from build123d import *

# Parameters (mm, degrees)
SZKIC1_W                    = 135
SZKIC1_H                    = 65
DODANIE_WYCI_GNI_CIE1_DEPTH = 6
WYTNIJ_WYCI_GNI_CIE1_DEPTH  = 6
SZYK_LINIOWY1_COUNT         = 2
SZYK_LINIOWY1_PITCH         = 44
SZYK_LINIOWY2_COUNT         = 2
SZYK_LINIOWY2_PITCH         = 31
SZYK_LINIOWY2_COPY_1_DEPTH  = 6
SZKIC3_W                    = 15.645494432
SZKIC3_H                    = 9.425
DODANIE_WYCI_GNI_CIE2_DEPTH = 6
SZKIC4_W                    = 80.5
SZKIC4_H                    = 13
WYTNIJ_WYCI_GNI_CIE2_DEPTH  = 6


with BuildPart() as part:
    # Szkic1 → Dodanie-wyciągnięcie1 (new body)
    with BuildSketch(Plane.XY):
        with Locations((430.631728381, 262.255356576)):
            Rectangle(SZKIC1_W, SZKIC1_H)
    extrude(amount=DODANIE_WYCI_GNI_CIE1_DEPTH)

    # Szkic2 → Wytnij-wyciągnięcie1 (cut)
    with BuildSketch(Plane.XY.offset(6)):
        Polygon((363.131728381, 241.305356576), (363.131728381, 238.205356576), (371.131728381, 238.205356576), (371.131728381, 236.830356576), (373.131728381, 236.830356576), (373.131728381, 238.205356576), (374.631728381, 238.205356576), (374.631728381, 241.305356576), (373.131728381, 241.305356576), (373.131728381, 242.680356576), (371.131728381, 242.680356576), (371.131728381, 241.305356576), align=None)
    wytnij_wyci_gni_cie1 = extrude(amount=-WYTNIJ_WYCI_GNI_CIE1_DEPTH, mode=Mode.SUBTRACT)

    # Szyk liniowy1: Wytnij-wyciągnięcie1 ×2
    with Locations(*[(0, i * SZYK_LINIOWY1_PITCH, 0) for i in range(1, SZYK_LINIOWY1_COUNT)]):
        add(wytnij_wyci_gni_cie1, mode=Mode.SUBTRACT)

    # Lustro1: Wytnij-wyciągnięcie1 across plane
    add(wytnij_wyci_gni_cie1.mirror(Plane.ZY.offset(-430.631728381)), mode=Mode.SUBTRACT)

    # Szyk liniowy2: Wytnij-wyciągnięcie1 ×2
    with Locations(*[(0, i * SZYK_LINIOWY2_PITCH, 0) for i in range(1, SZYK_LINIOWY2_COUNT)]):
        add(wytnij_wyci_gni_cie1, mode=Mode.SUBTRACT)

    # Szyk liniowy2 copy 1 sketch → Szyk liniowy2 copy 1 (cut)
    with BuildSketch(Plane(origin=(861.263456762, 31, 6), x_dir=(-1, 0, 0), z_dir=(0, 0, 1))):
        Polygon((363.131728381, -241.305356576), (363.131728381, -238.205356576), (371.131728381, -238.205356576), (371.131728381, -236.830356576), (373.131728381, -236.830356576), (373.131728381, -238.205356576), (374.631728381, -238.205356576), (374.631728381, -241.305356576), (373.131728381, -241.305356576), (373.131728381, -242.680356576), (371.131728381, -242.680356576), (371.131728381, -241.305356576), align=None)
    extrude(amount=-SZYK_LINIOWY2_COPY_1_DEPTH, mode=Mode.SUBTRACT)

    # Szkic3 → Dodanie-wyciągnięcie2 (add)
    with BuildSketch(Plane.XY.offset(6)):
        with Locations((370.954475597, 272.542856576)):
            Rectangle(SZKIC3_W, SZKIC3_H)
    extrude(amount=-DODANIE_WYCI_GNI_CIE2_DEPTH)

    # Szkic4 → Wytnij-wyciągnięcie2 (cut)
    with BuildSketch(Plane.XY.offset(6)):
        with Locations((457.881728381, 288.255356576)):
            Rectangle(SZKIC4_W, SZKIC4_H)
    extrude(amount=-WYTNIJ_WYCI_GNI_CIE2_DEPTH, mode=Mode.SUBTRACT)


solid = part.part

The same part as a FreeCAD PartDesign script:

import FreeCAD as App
import Part
import Sketcher

V = App.Vector


def add_polygon(sketch, points):
    """Adds a closed chain of lines whose ends are joined by coincident constraints."""
    first, n = sketch.GeometryCount, len(points)
    for a, b in zip(points, points[1:] + points[:1]):
        sketch.addGeometry(Part.LineSegment(App.Vector(*a, 0), App.Vector(*b, 0)), False)
    for i in range(n):
        sketch.addConstraint(Sketcher.Constraint("Coincident", first + i, 2, first + (i + 1) % n, 1))

doc = App.newDocument("Part")
body = doc.addObject("PartDesign::Body", "Body")

# Sketch on XY plane
sketch1 = doc.addObject("Sketcher::SketchObject", "Sketch")
body.addObject(sketch1)
sketch1.AttachmentSupport = (doc.XY_Plane, [""])
sketch1.MapMode = "FlatFace"
add_polygon(sketch1, [(363, 295), (363, 230), (498, 230), (498, 295)])  # lines 0-3
sketch1.addConstraint([
    Sketcher.Constraint("Vertical", 0),
    Sketcher.Constraint("Horizontal", 1),
    Sketcher.Constraint("Vertical", 2),
    Sketcher.Constraint("Horizontal", 3),
    Sketcher.Constraint("DistanceX", 1, 1, 1, 2, 135.0),
    Sketcher.Constraint("DistanceY", 0, 2, 0, 1, 65.0),
    Sketcher.Constraint("DistanceX", -1, 1, 0, 2, 363.131728),
    Sketcher.Constraint("DistanceY", -1, 1, 0, 2, 229.755357),
])
pad1 = doc.addObject("PartDesign::Pad", "Pad")
body.addObject(pad1)
pad1.Profile = sketch1
pad1.Length = 6

# Sketch on XY plane
sketch2 = doc.addObject("Sketcher::SketchObject", "Sketch001")
body.addObject(sketch2)
sketch2.AttachmentSupport = (doc.XY_Plane, [""])
sketch2.MapMode = "FlatFace"
sketch2.AttachmentOffset = App.Placement(V(0, 0, 6), App.Rotation())
add_polygon(sketch2, [(363.1, 241.3), (363.1, 238.2), (371.1, 238.2), (371.1, 236.8), (373.1, 236.8), (373.1, 238.2), (374.6, 238.2), (374.6, 241.3), (373.1, 241.3), (373.1, 242.7), (371.1, 242.7), (371.1, 241.3)])  # lines 0-11
sketch2.addConstraint([
    Sketcher.Constraint("Vertical", 0),
    Sketcher.Constraint("Horizontal", 1),
    Sketcher.Constraint("Vertical", 2),
    Sketcher.Constraint("Horizontal", 3),
    Sketcher.Constraint("Vertical", 4),
    Sketcher.Constraint("Horizontal", 5),
    Sketcher.Constraint("Vertical", 6),
    Sketcher.Constraint("Horizontal", 7),
    Sketcher.Constraint("Vertical", 8),
    Sketcher.Constraint("Horizontal", 9),
    Sketcher.Constraint("Vertical", 10),
    Sketcher.Constraint("Horizontal", 11),
    Sketcher.Constraint("Horizontal", 1, 2, 4, 2),
    Sketcher.Constraint("Horizontal", 7, 2, 10, 2),
    Sketcher.Constraint("Vertical", 4, 2, 7, 2),
    Sketcher.Constraint("Vertical", 2, 2, 9, 2),
    Sketcher.Constraint("Equal", 4, 8),
    Sketcher.Constraint("DistanceX", 1, 1, 1, 2, 8.0),
    Sketcher.Constraint("DistanceX", 3, 1, 3, 2, 2.0),
    Sketcher.Constraint("DistanceX", 5, 1, 5, 2, 1.5),
    Sketcher.Constraint("DistanceY", 0, 2, 0, 1, 3.1),
    Sketcher.Constraint("DistanceY", 2, 2, 2, 1, 1.375),
    Sketcher.Constraint("DistanceX", -1, 1, 0, 2, 363.131728),
    Sketcher.Constraint("DistanceY", -1, 1, 0, 2, 238.205357),
])
pocket1 = doc.addObject("PartDesign::Pocket", "Pocket")
body.addObject(pocket1)
pocket1.Profile = sketch2
pocket1.Length = 6
doc.recompute()

linearpattern = doc.addObject("PartDesign::LinearPattern", "LinearPattern")
body.addObject(linearpattern)
linearpattern.Originals = [pocket1]
linearpattern.Direction = (doc.Y_Axis, [""])
linearpattern.Mode = "offset"
linearpattern.Offset = 44
linearpattern.Occurrences = 2
body.Tip = linearpattern
doc.recompute()

datumplane = doc.addObject("PartDesign::Plane", "DatumPlane")
body.addObject(datumplane)
datumplane.AttachmentSupport = (doc.YZ_Plane, [""])
datumplane.MapMode = "FlatFace"
datumplane.AttachmentOffset = App.Placement(V(0, 0, 430.631728), App.Rotation())
mirrored = doc.addObject("PartDesign::Mirrored", "Mirrored")
body.addObject(mirrored)
mirrored.Originals = [pocket1]
mirrored.MirrorPlane = (datumplane, [""])
body.Tip = mirrored
doc.recompute()

linearpattern2 = doc.addObject("PartDesign::LinearPattern", "LinearPattern001")
body.addObject(linearpattern2)
linearpattern2.Originals = [pocket1]
linearpattern2.Direction = (doc.Y_Axis, [""])
linearpattern2.Mode = "offset"
linearpattern2.Offset = 31
linearpattern2.Occurrences = 2
body.Tip = linearpattern2

# Sketch on XY plane
sketch3 = doc.addObject("Sketcher::SketchObject", "Sketch002")
body.addObject(sketch3)
sketch3.AttachmentSupport = (doc.XY_Plane, [""])
sketch3.MapMode = "FlatFace"
sketch3.AttachmentOffset = App.Placement(V(0, 0, 6), App.Rotation())
add_polygon(sketch3, [(498.1, 269.2), (498.1, 272.3), (490.1, 272.3), (490.1, 273.7), (488.1, 273.7), (488.1, 272.3), (486.6, 272.3), (486.6, 269.2), (488.1, 269.2), (488.1, 267.8), (490.1, 267.8), (490.1, 269.2)])  # lines 0-11
sketch3.addConstraint([
    Sketcher.Constraint("Vertical", 0),
    Sketcher.Constraint("Horizontal", 1),
    Sketcher.Constraint("Vertical", 2),
    Sketcher.Constraint("Horizontal", 3),
    Sketcher.Constraint("Vertical", 4),
    Sketcher.Constraint("Horizontal", 5),
    Sketcher.Constraint("Vertical", 6),
    Sketcher.Constraint("Horizontal", 7),
    Sketcher.Constraint("Vertical", 8),
    Sketcher.Constraint("Horizontal", 9),
    Sketcher.Constraint("Vertical", 10),
    Sketcher.Constraint("Horizontal", 11),
    Sketcher.Constraint("Horizontal", 1, 2, 4, 2),
    Sketcher.Constraint("Horizontal", 7, 2, 10, 2),
    Sketcher.Constraint("Vertical", 4, 2, 7, 2),
    Sketcher.Constraint("Vertical", 2, 2, 9, 2),
    Sketcher.Constraint("Equal", 4, 8),
    Sketcher.Constraint("DistanceX", 1, 2, 1, 1, 8.0),
    Sketcher.Constraint("DistanceX", 3, 2, 3, 1, 2.0),
    Sketcher.Constraint("DistanceX", 5, 2, 5, 1, 1.5),
    Sketcher.Constraint("DistanceY", 0, 1, 0, 2, 3.1),
    Sketcher.Constraint("DistanceY", 2, 1, 2, 2, 1.375),
    Sketcher.Constraint("DistanceX", -1, 1, 0, 2, 498.131728),
    Sketcher.Constraint("DistanceY", -1, 1, 0, 2, 272.305357),
])
pocket2 = doc.addObject("PartDesign::Pocket", "Pocket001")
body.addObject(pocket2)
pocket2.Profile = sketch3
pocket2.Length = 6

# Sketch on XY plane
sketch4 = doc.addObject("Sketcher::SketchObject", "Sketch003")
body.addObject(sketch4)
sketch4.AttachmentSupport = (doc.XY_Plane, [""])
sketch4.MapMode = "FlatFace"
sketch4.AttachmentOffset = App.Placement(V(0, 0, 6), App.Rotation())
add_polygon(sketch4, [(363, 277), (363, 268), (379, 268), (379, 277)])  # lines 0-3
sketch4.addConstraint([
    Sketcher.Constraint("Vertical", 0),
    Sketcher.Constraint("Horizontal", 1),
    Sketcher.Constraint("Vertical", 2),
    Sketcher.Constraint("Horizontal", 3),
    Sketcher.Constraint("DistanceY", 0, 2, 0, 1, 9.425),
    Sketcher.Constraint("DistanceX", 1, 1, 1, 2, 15.645494),
    Sketcher.Constraint("DistanceX", -1, 1, 0, 2, 363.131728),
    Sketcher.Constraint("DistanceY", -1, 1, 0, 2, 267.830357),
])
pad2 = doc.addObject("PartDesign::Pad", "Pad001")
body.addObject(pad2)
pad2.Profile = sketch4
pad2.Length = 6
pad2.Reversed = True

# Sketch on XY plane
sketch5 = doc.addObject("Sketcher::SketchObject", "Sketch004")
body.addObject(sketch5)
sketch5.AttachmentSupport = (doc.XY_Plane, [""])
sketch5.MapMode = "FlatFace"
sketch5.AttachmentOffset = App.Placement(V(0, 0, 6), App.Rotation())
add_polygon(sketch5, [(418, 295), (418, 282), (498, 282), (498, 295)])  # lines 0-3
sketch5.addConstraint([
    Sketcher.Constraint("Vertical", 0),
    Sketcher.Constraint("Horizontal", 1),
    Sketcher.Constraint("Vertical", 2),
    Sketcher.Constraint("Horizontal", 3),
    Sketcher.Constraint("DistanceY", 0, 2, 0, 1, 13.0),
    Sketcher.Constraint("DistanceX", 1, 1, 1, 2, 80.5),
    Sketcher.Constraint("DistanceX", -1, 1, 0, 2, 417.631728),
    Sketcher.Constraint("DistanceY", -1, 1, 0, 2, 281.755357),
])
pocket3 = doc.addObject("PartDesign::Pocket", "Pocket002")
body.addObject(pocket3)
pocket3.Profile = sketch5
pocket3.Length = 6

doc.recompute()
